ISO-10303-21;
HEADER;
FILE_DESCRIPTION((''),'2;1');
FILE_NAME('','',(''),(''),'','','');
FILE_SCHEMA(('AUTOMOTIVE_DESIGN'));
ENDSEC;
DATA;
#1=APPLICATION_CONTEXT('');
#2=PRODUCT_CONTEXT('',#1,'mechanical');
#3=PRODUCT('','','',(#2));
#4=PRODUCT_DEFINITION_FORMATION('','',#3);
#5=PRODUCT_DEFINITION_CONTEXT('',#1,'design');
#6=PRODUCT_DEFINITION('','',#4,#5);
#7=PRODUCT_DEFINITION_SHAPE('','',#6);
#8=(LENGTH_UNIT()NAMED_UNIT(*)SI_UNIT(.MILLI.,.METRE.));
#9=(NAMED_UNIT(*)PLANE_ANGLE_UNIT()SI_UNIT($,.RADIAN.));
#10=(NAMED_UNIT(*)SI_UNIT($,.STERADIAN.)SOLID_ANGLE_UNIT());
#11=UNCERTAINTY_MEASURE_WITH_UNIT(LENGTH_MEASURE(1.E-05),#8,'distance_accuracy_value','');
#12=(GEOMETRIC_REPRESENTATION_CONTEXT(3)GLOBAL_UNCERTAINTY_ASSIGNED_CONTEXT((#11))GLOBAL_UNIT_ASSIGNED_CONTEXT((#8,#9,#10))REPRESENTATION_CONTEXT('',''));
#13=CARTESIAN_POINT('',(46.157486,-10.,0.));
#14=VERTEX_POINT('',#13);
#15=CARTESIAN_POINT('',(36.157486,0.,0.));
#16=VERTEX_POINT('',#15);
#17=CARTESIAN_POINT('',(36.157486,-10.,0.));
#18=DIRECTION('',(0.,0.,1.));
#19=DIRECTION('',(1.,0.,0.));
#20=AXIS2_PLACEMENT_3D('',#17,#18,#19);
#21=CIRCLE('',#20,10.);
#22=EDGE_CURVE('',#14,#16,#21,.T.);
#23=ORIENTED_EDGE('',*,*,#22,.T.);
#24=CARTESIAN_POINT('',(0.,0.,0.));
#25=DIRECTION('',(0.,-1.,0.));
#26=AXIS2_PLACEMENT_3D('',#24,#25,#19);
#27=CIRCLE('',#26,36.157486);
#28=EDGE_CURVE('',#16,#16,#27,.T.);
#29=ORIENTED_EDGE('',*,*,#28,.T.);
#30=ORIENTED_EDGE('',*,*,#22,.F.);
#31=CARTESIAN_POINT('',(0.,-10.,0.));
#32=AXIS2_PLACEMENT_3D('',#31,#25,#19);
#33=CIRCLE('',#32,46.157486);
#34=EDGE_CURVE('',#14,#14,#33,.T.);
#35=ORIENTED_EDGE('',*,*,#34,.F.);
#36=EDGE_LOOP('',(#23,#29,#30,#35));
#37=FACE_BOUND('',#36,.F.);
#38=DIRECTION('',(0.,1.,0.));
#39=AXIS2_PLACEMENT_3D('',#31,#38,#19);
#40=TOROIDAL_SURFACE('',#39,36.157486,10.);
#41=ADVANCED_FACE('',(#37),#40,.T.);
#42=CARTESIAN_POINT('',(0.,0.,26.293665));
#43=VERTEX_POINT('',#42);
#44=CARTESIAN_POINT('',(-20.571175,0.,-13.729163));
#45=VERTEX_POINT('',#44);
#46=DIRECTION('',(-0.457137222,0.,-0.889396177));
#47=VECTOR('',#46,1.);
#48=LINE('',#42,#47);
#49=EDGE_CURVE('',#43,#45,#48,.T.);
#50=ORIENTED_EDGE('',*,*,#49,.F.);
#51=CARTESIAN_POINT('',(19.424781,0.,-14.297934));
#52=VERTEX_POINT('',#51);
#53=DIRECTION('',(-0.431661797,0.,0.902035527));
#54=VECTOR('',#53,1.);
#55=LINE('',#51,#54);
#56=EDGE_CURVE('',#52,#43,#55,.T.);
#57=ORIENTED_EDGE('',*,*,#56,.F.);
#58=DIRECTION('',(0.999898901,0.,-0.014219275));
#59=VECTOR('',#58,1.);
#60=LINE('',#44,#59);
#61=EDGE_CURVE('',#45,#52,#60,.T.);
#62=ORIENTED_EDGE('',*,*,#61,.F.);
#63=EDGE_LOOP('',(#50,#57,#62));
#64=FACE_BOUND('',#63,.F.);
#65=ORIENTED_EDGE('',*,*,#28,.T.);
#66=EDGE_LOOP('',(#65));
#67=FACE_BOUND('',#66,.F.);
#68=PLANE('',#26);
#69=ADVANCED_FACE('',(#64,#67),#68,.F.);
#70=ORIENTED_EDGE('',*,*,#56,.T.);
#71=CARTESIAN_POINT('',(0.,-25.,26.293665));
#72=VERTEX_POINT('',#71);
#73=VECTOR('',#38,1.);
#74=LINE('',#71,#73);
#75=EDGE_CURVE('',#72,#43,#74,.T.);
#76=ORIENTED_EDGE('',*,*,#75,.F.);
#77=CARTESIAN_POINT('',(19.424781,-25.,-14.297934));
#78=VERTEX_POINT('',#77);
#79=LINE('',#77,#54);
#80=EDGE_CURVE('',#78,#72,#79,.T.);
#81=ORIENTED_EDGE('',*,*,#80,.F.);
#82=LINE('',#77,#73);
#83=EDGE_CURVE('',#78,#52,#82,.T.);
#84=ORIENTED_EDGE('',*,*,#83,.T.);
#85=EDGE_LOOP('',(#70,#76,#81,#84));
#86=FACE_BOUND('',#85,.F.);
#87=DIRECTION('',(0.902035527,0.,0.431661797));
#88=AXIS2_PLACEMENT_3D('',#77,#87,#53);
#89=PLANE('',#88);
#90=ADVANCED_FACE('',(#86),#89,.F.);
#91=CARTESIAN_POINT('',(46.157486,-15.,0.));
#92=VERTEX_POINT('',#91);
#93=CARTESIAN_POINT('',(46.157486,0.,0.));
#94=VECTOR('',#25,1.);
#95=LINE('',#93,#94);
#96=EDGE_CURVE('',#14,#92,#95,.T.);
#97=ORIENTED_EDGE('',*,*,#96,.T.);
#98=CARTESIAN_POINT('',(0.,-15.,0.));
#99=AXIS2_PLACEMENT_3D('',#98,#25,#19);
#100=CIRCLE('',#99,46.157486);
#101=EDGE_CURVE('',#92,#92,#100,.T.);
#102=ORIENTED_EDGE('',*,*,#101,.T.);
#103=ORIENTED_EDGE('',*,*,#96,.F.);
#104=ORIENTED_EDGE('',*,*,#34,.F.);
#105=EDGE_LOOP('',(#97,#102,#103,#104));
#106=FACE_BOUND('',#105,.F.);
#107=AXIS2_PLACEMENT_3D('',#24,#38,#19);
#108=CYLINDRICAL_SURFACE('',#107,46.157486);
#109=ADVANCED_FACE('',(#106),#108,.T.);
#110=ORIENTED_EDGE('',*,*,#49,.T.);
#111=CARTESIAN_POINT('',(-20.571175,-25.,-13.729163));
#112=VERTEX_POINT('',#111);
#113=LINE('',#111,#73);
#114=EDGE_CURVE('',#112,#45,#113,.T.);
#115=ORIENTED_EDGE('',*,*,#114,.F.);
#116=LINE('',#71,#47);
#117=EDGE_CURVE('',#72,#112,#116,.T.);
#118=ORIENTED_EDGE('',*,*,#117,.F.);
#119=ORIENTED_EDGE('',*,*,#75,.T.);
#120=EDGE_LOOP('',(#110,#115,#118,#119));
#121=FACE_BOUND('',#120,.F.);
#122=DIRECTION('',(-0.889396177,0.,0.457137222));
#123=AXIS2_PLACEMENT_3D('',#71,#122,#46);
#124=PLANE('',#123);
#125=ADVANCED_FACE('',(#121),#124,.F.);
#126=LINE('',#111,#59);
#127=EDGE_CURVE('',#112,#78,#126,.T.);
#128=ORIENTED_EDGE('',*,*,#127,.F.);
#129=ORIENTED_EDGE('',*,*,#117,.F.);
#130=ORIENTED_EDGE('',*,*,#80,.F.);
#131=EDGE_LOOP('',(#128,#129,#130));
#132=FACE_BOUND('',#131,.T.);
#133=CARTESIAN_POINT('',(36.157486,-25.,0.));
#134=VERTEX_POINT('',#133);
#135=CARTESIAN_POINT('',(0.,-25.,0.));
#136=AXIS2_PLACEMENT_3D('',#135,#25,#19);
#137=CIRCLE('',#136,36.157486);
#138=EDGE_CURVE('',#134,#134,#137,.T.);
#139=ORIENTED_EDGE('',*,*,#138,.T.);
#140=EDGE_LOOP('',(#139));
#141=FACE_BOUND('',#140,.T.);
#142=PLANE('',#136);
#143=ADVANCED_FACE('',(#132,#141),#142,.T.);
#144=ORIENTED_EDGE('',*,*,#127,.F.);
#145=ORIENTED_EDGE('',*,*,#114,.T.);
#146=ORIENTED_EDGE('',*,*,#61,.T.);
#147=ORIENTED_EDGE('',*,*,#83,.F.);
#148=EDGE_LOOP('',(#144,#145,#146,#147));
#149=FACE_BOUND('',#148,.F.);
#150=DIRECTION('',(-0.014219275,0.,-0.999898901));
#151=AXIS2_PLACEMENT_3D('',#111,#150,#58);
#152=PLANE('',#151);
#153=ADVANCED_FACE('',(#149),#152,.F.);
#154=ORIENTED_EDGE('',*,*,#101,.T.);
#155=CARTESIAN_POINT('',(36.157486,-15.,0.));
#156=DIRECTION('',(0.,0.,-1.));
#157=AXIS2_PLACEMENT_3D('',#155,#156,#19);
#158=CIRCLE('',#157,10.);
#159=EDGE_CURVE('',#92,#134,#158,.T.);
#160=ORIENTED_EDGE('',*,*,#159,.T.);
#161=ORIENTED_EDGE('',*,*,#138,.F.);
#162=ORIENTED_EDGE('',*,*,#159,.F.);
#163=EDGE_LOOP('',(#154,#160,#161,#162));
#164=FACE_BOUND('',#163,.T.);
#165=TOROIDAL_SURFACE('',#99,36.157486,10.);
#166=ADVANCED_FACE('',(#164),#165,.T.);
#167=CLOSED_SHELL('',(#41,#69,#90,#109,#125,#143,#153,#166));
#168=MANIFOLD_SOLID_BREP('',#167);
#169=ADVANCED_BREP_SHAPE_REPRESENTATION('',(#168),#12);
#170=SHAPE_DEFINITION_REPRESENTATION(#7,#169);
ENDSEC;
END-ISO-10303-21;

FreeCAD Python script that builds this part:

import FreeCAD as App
import Part
import Sketcher


def edges_at(feature, points):
    """Names of the edges that pass closest to the given points."""
    edges = feature.Shape.Edges
    near = lambda p: min(range(len(edges)), key=lambda i: edges[i].distToShape(Part.Vertex(*p))[0])
    return sorted({f"Edge{near(p) + 1}" for p in points})


def add_polygon(sketch, points):
    """Adds a closed chain of lines whose ends are joined by coincident constraints."""
    first, n = sketch.GeometryCount, len(points)
    for a, b in zip(points, points[1:] + points[:1]):
        sketch.addGeometry(Part.LineSegment(App.Vector(*a, 0), App.Vector(*b, 0)), False)
    for i in range(n):
        sketch.addConstraint(Sketcher.Constraint("Coincident", first + i, 2, first + (i + 1) % n, 1))

doc = App.newDocument("Part")
body = doc.addObject("PartDesign::Body", "Body")

sketch1 = body.newObject("Sketcher::SketchObject", "Sketch")
sketch1.AttachmentSupport = (doc.getObject("XZ_Plane"), [""])
sketch1.MapMode = "FlatFace"
sketch1.addGeometry(Part.Circle(App.Vector(0, 0, 0), App.Vector(0, 0, 1), 46), False)
sketch1.addConstraint([
    Sketcher.Constraint("Coincident", 0, 3, -1, 1),
    Sketcher.Constraint("Diameter", 0, 92.314972),
])
pad1 = body.newObject("PartDesign::Pad", "Pad")
pad1.Profile = sketch1
pad1.Length = 25

sketch2 = body.newObject("Sketcher::SketchObject", "Sketch001")
sketch2.AttachmentSupport = (doc.getObject("XZ_Plane"), [""])
sketch2.MapMode = "FlatFace"
sketch2.AttachmentOffset = App.Placement(App.Vector(0, 0, 25), App.Rotation())
add_polygon(sketch2, [(0, 26), (-21, -14), (19, -14)])
sketch2.addConstraint([
    Sketcher.Constraint("PointOnObject", 2, 2, -2),
    Sketcher.Constraint("Equal", 0, 2),
    Sketcher.Constraint("Distance", 0, 45.0),
    Sketcher.Constraint("Distance", 1, 40.0),
    Sketcher.Constraint("DistanceY", 1, 2, 2, 2, 40.591599),
    Sketcher.Constraint("DistanceY", 0, 2, -1, 1, 13.729163),
])
pocket1 = body.newObject("PartDesign::Pocket", "Pocket")
pocket1.Profile = sketch2
pocket1.Length = 25
doc.recompute()

fillet = body.newObject("PartDesign::Fillet", "Fillet")
fillet.Base = (pocket1, edges_at(pocket1, [(-46.157, -25, 0), (-46.157, 0, 0)]))
fillet.Radius = 10

doc.recompute()
